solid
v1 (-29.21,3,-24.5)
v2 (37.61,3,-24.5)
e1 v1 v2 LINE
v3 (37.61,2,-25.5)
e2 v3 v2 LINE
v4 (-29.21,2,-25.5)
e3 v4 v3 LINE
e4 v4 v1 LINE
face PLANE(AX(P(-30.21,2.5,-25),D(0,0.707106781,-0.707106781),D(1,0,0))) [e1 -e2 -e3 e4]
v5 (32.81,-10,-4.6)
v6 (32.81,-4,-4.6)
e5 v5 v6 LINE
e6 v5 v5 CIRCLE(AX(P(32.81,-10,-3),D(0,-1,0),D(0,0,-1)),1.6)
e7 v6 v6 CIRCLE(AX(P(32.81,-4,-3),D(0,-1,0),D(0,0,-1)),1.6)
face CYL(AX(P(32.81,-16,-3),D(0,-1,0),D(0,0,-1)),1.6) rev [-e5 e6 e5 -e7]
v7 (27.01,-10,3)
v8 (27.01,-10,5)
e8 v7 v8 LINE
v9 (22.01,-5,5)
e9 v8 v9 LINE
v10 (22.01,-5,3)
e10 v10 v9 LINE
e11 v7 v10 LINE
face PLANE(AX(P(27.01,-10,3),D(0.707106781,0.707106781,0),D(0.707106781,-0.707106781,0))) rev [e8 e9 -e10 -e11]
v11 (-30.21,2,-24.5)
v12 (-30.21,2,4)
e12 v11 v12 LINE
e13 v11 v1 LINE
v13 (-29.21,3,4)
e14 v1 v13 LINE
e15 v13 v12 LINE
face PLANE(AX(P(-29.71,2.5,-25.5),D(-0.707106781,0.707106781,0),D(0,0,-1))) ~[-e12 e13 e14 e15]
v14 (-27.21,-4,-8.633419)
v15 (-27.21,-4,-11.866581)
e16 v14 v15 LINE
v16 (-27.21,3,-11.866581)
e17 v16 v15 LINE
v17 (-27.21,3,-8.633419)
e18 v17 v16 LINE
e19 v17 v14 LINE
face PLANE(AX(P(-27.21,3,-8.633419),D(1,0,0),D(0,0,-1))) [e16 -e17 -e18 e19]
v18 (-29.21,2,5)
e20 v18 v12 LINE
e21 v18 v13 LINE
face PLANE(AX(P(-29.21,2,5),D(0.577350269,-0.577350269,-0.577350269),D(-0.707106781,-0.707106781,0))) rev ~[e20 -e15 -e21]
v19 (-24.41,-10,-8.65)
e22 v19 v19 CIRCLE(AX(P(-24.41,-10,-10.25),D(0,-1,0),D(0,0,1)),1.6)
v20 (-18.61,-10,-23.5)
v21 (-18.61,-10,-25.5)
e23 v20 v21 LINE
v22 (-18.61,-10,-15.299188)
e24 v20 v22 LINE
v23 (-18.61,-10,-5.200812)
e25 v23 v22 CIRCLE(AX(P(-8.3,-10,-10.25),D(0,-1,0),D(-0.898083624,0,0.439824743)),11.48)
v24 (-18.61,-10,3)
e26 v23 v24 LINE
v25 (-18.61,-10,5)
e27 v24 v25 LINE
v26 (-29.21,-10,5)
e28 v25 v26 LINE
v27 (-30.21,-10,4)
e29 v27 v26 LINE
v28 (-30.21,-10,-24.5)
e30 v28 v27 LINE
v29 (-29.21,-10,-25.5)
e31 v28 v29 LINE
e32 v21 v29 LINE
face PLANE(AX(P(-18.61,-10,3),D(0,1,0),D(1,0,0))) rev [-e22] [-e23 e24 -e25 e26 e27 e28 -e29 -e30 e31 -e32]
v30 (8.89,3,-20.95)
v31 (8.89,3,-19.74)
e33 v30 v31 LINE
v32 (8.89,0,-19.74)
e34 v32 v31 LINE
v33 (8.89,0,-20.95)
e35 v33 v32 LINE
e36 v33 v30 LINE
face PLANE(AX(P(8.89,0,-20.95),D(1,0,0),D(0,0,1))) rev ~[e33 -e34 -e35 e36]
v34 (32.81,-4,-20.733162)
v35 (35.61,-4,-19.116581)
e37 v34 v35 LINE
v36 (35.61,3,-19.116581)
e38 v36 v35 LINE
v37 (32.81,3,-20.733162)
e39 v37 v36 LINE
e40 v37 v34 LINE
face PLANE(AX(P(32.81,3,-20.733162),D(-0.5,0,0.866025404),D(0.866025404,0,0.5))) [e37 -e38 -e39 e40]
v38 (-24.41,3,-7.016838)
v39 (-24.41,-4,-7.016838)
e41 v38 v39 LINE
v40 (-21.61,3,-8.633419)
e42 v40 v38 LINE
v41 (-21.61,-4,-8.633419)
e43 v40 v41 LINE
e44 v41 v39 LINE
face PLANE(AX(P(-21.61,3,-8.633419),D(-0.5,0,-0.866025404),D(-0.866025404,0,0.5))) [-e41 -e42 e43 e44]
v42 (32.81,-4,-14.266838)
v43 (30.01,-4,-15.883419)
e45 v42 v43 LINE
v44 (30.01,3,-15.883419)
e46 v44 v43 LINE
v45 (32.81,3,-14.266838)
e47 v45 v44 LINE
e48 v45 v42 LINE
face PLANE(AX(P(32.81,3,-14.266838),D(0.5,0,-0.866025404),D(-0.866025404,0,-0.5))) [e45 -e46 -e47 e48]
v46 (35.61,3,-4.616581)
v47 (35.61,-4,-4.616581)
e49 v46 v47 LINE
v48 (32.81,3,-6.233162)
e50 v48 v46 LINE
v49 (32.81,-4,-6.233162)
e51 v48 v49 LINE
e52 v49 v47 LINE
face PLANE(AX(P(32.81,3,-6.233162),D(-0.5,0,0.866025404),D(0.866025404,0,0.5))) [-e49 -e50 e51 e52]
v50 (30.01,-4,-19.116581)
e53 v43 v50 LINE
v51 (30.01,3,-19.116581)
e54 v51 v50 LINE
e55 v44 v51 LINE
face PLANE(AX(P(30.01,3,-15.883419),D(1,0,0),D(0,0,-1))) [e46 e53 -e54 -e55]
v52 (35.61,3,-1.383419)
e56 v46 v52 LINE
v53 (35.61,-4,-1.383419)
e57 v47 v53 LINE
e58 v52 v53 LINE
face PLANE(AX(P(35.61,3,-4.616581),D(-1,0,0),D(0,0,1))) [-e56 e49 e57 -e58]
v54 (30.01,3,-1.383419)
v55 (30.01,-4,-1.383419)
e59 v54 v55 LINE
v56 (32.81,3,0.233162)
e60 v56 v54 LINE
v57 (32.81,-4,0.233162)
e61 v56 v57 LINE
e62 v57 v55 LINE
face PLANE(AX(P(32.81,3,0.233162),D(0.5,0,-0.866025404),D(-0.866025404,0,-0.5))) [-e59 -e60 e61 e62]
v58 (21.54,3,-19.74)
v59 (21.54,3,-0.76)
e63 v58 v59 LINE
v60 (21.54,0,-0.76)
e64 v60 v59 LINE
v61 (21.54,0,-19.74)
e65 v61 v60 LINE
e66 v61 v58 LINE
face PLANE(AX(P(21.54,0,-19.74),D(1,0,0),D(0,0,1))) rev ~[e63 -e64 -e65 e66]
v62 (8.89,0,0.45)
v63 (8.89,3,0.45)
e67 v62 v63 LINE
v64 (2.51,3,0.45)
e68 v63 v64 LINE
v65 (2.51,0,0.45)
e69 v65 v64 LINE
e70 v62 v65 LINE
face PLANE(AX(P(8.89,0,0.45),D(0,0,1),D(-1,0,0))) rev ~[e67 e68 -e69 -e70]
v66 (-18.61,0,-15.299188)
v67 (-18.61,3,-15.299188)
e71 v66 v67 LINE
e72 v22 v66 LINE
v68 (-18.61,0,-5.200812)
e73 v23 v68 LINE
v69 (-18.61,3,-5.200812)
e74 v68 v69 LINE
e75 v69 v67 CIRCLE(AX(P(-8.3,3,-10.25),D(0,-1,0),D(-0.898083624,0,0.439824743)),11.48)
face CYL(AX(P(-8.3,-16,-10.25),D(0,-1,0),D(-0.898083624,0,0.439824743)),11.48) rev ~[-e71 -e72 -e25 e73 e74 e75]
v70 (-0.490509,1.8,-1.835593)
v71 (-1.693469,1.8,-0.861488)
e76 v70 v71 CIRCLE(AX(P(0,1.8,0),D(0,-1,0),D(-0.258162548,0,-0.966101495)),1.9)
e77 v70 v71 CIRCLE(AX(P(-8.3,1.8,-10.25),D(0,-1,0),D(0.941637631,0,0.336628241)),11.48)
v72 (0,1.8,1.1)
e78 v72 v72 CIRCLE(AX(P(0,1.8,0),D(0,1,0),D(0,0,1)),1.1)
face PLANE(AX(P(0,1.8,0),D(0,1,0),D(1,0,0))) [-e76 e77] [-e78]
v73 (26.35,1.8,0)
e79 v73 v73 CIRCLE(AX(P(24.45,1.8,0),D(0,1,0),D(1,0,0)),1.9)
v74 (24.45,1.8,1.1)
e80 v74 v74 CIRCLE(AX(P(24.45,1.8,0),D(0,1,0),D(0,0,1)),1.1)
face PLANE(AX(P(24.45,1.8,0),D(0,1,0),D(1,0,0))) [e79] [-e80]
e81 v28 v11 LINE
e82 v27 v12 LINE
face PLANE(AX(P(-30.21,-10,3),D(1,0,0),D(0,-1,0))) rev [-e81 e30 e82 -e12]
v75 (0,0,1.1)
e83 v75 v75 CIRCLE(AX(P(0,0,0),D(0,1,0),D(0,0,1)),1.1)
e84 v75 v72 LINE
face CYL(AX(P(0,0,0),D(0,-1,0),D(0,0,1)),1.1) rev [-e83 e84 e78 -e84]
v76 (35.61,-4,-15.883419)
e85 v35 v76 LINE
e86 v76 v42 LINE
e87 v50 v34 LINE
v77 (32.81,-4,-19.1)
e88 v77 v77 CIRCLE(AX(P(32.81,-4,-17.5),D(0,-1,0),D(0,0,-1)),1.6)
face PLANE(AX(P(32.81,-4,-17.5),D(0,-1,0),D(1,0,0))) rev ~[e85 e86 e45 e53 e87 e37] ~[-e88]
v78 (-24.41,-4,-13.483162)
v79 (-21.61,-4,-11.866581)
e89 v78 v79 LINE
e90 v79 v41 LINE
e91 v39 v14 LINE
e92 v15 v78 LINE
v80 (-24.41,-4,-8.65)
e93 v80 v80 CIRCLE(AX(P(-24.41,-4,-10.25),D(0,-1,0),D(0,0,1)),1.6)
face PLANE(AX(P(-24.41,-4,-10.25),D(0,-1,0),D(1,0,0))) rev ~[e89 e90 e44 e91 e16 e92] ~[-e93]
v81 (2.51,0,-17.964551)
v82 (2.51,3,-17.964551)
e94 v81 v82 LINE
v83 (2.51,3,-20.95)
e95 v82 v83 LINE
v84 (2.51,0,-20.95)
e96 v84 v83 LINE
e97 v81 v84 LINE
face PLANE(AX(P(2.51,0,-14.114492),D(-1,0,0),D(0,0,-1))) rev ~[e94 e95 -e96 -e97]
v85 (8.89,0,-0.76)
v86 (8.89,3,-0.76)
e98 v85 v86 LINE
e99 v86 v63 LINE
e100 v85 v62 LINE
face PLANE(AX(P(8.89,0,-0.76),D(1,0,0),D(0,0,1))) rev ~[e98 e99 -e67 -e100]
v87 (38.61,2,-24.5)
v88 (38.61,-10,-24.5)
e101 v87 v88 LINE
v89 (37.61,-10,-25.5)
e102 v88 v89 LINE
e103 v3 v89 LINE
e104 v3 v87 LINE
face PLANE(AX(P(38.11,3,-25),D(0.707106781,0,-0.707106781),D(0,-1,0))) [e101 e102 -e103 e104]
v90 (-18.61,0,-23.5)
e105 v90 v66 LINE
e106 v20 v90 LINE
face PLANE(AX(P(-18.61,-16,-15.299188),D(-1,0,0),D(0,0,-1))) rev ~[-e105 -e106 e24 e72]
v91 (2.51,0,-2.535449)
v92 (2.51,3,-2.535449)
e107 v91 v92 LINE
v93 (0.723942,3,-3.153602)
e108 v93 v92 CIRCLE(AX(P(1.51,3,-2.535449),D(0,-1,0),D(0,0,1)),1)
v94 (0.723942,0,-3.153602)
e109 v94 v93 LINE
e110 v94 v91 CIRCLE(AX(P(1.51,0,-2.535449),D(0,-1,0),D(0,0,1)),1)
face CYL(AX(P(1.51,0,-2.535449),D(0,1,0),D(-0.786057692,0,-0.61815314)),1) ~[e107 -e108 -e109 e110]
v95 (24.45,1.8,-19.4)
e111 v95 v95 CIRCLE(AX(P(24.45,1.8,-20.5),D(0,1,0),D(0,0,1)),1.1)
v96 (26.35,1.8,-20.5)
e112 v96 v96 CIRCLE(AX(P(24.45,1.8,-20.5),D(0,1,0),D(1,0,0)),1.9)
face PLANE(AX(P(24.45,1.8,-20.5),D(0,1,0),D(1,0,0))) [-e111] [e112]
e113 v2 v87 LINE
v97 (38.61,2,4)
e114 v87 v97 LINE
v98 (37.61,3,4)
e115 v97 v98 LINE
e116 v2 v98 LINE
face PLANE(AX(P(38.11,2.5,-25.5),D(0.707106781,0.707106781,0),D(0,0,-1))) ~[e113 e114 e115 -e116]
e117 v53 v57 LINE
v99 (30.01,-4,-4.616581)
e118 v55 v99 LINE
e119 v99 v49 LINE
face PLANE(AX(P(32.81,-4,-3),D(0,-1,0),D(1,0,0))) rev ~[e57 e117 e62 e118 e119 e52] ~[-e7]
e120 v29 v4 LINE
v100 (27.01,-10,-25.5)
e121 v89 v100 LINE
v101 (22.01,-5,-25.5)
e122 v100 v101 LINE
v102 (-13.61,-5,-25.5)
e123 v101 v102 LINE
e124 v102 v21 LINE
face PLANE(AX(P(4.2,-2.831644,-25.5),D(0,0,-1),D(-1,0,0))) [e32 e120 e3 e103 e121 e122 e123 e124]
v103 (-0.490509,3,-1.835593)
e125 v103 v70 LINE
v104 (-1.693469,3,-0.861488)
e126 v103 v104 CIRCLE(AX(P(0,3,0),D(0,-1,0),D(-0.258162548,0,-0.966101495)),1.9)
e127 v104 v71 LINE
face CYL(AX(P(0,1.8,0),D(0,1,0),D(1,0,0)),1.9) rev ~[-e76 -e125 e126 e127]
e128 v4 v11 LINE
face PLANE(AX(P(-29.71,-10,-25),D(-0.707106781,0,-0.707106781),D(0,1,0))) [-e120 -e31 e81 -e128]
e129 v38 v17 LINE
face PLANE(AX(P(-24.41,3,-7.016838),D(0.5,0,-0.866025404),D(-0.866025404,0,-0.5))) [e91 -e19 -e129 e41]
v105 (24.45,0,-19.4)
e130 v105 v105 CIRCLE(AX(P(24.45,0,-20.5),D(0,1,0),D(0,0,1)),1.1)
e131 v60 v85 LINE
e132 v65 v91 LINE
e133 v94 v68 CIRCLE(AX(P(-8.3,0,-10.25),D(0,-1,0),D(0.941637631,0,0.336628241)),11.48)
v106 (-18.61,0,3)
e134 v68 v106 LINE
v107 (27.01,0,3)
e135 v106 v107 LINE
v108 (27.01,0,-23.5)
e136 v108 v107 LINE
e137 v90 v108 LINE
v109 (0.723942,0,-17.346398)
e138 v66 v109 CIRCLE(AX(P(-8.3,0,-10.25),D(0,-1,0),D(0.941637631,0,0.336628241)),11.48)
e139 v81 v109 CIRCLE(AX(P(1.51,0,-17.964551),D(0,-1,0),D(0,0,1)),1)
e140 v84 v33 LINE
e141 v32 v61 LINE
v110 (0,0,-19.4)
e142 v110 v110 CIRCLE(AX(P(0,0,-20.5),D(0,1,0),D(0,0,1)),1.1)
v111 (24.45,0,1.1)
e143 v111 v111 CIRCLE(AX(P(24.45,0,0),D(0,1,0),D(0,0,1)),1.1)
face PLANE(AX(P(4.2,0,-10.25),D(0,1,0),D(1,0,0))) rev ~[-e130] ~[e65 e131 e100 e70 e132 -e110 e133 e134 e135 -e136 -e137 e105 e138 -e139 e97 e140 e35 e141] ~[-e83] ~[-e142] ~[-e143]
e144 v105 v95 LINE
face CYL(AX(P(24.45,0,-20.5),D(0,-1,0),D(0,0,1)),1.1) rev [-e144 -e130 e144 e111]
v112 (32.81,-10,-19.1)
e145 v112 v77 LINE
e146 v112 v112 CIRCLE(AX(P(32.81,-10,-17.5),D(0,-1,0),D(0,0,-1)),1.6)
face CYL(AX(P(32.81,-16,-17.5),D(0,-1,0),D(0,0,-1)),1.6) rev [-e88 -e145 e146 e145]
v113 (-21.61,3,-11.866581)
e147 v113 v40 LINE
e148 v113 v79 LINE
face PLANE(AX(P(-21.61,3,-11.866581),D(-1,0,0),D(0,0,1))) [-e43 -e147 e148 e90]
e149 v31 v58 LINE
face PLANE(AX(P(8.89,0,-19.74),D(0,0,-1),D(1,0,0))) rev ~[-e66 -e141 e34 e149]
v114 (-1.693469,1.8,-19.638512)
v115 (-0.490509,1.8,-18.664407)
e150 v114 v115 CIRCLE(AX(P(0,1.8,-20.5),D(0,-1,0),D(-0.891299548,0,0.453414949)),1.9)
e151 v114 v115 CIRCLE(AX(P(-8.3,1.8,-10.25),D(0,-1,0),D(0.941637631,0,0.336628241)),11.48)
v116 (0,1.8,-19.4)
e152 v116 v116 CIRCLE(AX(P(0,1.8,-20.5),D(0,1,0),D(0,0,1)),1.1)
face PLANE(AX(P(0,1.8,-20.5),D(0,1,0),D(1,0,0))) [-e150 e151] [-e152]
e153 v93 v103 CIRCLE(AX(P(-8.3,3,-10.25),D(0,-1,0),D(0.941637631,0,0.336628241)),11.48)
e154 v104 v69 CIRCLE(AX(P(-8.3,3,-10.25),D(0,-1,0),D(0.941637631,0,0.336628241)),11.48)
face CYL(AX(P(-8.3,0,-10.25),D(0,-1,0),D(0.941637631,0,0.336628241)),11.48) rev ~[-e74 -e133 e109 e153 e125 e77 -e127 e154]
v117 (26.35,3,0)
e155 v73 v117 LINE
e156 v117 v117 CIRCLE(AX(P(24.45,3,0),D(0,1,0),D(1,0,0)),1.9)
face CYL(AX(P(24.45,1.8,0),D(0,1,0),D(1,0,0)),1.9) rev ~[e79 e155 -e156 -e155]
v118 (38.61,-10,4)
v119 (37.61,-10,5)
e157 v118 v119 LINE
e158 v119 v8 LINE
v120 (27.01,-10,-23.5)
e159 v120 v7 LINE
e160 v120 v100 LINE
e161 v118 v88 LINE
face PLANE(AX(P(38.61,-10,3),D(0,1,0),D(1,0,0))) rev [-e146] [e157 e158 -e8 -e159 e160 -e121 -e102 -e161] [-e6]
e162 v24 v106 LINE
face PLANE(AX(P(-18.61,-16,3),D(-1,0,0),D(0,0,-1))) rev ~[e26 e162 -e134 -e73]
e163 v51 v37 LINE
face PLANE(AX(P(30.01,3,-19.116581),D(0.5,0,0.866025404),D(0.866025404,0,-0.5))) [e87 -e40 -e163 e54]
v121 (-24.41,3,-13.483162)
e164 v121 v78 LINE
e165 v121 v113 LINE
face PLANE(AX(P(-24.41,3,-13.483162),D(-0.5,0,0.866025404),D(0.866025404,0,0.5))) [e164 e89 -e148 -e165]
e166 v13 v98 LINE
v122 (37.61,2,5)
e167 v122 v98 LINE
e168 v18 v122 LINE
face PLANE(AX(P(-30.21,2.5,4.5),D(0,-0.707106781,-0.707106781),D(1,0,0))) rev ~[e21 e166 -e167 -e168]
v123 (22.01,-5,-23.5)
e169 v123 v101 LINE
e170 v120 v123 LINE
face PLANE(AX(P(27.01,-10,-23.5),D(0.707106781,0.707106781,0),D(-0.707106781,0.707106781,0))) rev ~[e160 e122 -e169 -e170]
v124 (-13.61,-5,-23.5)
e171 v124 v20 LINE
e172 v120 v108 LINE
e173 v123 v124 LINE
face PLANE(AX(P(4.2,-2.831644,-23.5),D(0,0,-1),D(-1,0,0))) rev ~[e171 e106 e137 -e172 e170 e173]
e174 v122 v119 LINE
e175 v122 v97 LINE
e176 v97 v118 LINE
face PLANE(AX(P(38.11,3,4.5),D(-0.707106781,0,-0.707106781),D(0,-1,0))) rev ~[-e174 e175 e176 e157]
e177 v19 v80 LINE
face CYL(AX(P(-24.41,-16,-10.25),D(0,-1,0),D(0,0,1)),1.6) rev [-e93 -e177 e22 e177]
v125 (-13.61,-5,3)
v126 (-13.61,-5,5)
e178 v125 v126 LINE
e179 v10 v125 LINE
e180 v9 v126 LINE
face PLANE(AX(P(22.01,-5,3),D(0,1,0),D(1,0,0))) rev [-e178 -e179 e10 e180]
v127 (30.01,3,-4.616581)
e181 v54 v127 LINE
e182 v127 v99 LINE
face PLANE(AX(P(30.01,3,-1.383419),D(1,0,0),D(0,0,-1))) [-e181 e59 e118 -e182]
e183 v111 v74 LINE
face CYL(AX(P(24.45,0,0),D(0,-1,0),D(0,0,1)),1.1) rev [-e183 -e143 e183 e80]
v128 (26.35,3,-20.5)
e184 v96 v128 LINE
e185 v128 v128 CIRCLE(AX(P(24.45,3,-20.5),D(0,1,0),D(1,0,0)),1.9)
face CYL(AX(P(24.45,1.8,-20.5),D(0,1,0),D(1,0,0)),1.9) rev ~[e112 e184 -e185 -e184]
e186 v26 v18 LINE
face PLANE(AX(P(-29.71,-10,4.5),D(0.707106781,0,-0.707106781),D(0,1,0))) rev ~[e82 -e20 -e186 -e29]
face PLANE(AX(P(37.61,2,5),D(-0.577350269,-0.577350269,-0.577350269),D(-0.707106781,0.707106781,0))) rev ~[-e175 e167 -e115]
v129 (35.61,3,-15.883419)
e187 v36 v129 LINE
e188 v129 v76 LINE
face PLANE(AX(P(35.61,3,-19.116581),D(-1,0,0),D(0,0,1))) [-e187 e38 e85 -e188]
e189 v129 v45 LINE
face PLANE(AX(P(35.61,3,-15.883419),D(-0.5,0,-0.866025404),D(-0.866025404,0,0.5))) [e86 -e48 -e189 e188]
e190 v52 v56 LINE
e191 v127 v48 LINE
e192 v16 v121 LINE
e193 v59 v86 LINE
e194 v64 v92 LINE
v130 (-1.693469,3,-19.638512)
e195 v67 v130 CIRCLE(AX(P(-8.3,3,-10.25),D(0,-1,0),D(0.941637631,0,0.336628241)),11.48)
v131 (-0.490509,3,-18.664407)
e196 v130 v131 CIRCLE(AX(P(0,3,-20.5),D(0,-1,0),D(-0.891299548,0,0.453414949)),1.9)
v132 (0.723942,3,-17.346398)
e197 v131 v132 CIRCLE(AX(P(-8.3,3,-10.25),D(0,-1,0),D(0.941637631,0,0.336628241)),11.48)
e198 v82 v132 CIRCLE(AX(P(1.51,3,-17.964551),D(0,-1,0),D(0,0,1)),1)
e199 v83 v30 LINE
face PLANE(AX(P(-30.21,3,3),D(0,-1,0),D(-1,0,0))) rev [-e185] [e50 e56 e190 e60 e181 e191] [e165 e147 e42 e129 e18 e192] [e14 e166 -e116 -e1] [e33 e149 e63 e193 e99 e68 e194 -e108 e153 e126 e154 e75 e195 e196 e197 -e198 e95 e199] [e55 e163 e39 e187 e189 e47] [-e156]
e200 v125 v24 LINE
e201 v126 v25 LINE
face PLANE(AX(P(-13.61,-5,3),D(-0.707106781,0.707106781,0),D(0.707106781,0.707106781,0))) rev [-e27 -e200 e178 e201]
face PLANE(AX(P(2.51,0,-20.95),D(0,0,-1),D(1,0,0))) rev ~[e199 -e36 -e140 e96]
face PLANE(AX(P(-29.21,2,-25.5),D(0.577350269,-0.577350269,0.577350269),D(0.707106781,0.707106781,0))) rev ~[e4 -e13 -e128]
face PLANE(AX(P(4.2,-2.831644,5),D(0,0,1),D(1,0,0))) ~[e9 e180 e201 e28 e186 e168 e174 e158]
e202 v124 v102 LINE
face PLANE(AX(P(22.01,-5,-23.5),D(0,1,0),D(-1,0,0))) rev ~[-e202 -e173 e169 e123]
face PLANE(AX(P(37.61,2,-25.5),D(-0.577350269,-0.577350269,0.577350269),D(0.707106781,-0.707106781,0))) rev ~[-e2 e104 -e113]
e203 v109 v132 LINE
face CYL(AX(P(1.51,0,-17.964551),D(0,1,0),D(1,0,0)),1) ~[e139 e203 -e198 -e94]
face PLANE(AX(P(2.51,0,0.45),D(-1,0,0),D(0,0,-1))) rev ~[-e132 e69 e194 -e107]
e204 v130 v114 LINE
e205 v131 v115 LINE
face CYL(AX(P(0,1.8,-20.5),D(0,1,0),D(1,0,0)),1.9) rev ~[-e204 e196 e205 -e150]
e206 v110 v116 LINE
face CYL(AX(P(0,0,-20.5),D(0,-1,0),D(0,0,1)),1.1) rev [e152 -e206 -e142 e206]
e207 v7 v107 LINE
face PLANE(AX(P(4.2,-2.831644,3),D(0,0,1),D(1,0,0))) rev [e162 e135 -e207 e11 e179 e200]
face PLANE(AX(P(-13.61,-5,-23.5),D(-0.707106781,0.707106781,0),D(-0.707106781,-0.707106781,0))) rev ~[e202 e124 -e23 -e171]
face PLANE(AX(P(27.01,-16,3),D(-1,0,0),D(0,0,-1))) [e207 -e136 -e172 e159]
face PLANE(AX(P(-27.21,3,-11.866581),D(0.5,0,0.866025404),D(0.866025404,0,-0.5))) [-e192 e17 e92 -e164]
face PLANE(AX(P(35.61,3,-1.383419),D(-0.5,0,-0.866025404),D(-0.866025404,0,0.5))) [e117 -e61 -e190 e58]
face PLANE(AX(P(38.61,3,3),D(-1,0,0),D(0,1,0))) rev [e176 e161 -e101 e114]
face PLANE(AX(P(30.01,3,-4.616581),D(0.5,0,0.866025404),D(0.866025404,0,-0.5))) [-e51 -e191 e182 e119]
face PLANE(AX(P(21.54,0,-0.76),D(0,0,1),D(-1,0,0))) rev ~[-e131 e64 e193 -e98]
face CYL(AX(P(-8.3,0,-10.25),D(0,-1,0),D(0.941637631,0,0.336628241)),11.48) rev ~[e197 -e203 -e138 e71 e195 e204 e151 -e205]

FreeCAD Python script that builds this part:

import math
import FreeCAD as App
import Part
import Sketcher
from FreeCAD import Vector
Q = App.Units.Quantity


def edges_at(feature, points):
    """Names of the edges that pass closest to the given points."""
    edges = feature.Shape.Edges
    near = lambda p: min(range(len(edges)), key=lambda i: edges[i].distToShape(Part.Vertex(*p))[0])
    return sorted({f"Edge{near(p) + 1}" for p in points})

doc = App.newDocument("Part")
body = doc.addObject("PartDesign::Body", "Body")

sketch1 = body.newObject("Sketcher::SketchObject", "Sketch")
sketch1.AttachmentSupport = (doc.getObject("XZ_Plane"), [""])
sketch1.MapMode = "FlatFace"
sketch1.addGeometry(Part.LineSegment(Vector(-21.1, -23.5, 0), Vector(-21.1, 3, 0)), False)
sketch1.addGeometry(Part.LineSegment(Vector(-21.1, 3, 0), Vector(29.4, 3, 0)), False)
sketch1.addGeometry(Part.LineSegment(Vector(29.4, 3, 0), Vector(29.4, -23.5, 0)), False)
sketch1.addGeometry(Part.LineSegment(Vector(29.4, -23.5, 0), Vector(-21.1, -23.5, 0)), False)
sketch1.addGeometry(Part.Circle(Vector(0, 0, 0), Vector(0, 0, 1), 1.1), False)
sketch1.addGeometry(Part.LineSegment(Vector(2.5, -20.9, 0), Vector(8.9, -20.9, 0)), False)
sketch1.addGeometry(Part.LineSegment(Vector(8.9, -20.9, 0), Vector(8.9, -19.7, 0)), False)
sketch1.addGeometry(Part.LineSegment(Vector(8.9, -19.7, 0), Vector(21.5, -19.7, 0)), False)
sketch1.addGeometry(Part.LineSegment(Vector(21.5, -19.7, 0), Vector(21.5, -0.8, 0)), False)
sketch1.addGeometry(Part.LineSegment(Vector(21.5, -0.8, 0), Vector(8.9, -0.8, 0)), False)
sketch1.addGeometry(Part.LineSegment(Vector(8.9, -0.8, 0), Vector(8.9, 0.5, 0)), False)
sketch1.addGeometry(Part.LineSegment(Vector(8.9, 0.5, 0), Vector(2.5, 0.5, 0)), False)
sketch1.addGeometry(Part.LineSegment(Vector(2.5, 0.5, 0), Vector(2.5, -6.4, 0)), False)
sketch1.addGeometry(Part.ArcOfCircle(Part.Circle(Vector(-8.3, -10.2, 0), Vector(0, 0, 1), 11.5), math.radians(20), math.radians(340)), False)
sketch1.addGeometry(Part.LineSegment(Vector(2.5, -14.1, 0), Vector(2.5, -20.9, 0)), False)
sketch1.addGeometry(Part.Circle(Vector(24.4, 0, 0), Vector(0, 0, 1), 1.1), False)
sketch1.addGeometry(Part.Circle(Vector(0, -20.5, 0), Vector(0, 0, 1), 1.1), False)
sketch1.addGeometry(Part.Circle(Vector(24.4, -20.5, 0), Vector(0, 0, 1), 1.1), False)
sketch1.addConstraint(Sketcher.Constraint("Coincident", 0, 2, 1, 1))
sketch1.addConstraint(Sketcher.Constraint("Coincident", 1, 2, 2, 1))
sketch1.addConstraint(Sketcher.Constraint("Coincident", 2, 2, 3, 1))
sketch1.addConstraint(Sketcher.Constraint("Coincident", 3, 2, 0, 1))
sketch1.addConstraint(Sketcher.Constraint("Coincident", 5, 2, 6, 1))
sketch1.addConstraint(Sketcher.Constraint("Coincident", 6, 2, 7, 1))
sketch1.addConstraint(Sketcher.Constraint("Coincident", 7, 2, 8, 1))
sketch1.addConstraint(Sketcher.Constraint("Coincident", 8, 2, 9, 1))
sketch1.addConstraint(Sketcher.Constraint("Coincident", 9, 2, 10, 1))
sketch1.addConstraint(Sketcher.Constraint("Coincident", 10, 2, 11, 1))
sketch1.addConstraint(Sketcher.Constraint("Coincident", 11, 2, 12, 1))
sketch1.addConstraint(Sketcher.Constraint("Coincident", 12, 2, 13, 1))
sketch1.addConstraint(Sketcher.Constraint("Coincident", 13, 2, 14, 1))
sketch1.addConstraint(Sketcher.Constraint("Coincident", 14, 2, 5, 1))
sketch1.addConstraint(Sketcher.Constraint("Vertical", 0))
sketch1.addConstraint(Sketcher.Constraint("Horizontal", 1))
sketch1.addConstraint(Sketcher.Constraint("Vertical", 2))
sketch1.addConstraint(Sketcher.Constraint("Horizontal", 3))
sketch1.addConstraint(Sketcher.Constraint("Horizontal", 5))
sketch1.addConstraint(Sketcher.Constraint("Vertical", 6))
sketch1.addConstraint(Sketcher.Constraint("Horizontal", 7))
sketch1.addConstraint(Sketcher.Constraint("Vertical", 8))
sketch1.addConstraint(Sketcher.Constraint("Horizontal", 9))
sketch1.addConstraint(Sketcher.Constraint("Vertical", 10))
sketch1.addConstraint(Sketcher.Constraint("Horizontal", 11))
sketch1.addConstraint(Sketcher.Constraint("Vertical", 12))
sketch1.addConstraint(Sketcher.Constraint("Vertical", 14))
sketch1.addConstraint(Sketcher.Constraint("Coincident", 4, 3, -1, 1))
sketch1.addConstraint(Sketcher.Constraint("Equal", 4, 15))
sketch1.addConstraint(Sketcher.Constraint("Equal", 15, 16))
sketch1.addConstraint(Sketcher.Constraint("Equal", 16, 17))
sketch1.addConstraint(Sketcher.Constraint("PointOnObject", 15, 3, -1))
sketch1.addConstraint(Sketcher.Constraint("PointOnObject", 16, 3, -2))
sketch1.addConstraint(Sketcher.Constraint("Horizontal", 16, 3, 17, 3))
sketch1.addConstraint(Sketcher.Constraint("Vertical", 15, 3, 17, 3))
sketch1.addConstraint(Sketcher.Constraint("Vertical", 6, 2, 9, 2))
sketch1.addConstraint(Sketcher.Constraint("Vertical", 12, 2, 13, 2))
sketch1.addConstraint(Sketcher.Constraint("Equal", 6, 10))
sketch1.addConstraint(Sketcher.Constraint("Equal", 12, 14))
sketch1.addConstraint(Sketcher.Constraint("Diameter", 4, 2.2))
sketch1.addConstraint(Sketcher.Constraint("Radius", 13, 11.48))
sketch1.addConstraint(Sketcher.Constraint("DistanceX", 1, 1, 1, 2, 50.5))
sketch1.addConstraint(Sketcher.Constraint("DistanceY", 0, 1, 0, 2, 26.5))
sketch1.addConstraint(Sketcher.Constraint("DistanceY", -1, 1, 0, 2, 3.0))
sketch1.addConstraint(Sketcher.Constraint("DistanceX", 15, 3, 1, 2, 5.0))
sketch1.addConstraint(Sketcher.Constraint("DistanceY", 2, 2, 17, 3, 3.0))
sketch1.addConstraint(Sketcher.Constraint("DistanceX", 5, 1, 5, 2, 6.38))
sketch1.addConstraint(Sketcher.Constraint("DistanceX", 7, 1, 7, 2, 12.65))
sketch1.addConstraint(Sketcher.Constraint("DistanceY", 6, 1, 6, 2, 1.21))
sketch1.addConstraint(Sketcher.Constraint("DistanceY", 8, 1, 8, 2, 18.98))
sketch1.addConstraint(Sketcher.Constraint("DistanceX", 13, 3, -1, 1, 8.3))
sketch1.addConstraint(Sketcher.Constraint("DistanceY", 13, 3, -1, 1, 10.25))
sketch1.addConstraint(Sketcher.Constraint("DistanceX", -1, 1, 15, 3, 24.45))
sketch1.addConstraint(Sketcher.Constraint("DistanceX", -1, 1, 5, 2, 8.89))
pad1 = body.newObject("PartDesign::Pad", "Pad")
pad1.Profile = sketch1
pad1.Length = 3
pad1.Reversed = True
doc.recompute()

fillet = body.newObject("PartDesign::Fillet", "Fillet")
fillet.Base = (pad1, edges_at(pad1, [(2.51, 1.5, -6.386), (2.51, 1.5, -14.114)]))
fillet.Radius = 1

sketch2 = body.newObject("Sketcher::SketchObject", "Sketch001")
sketch2.AttachmentSupport = (doc.getObject("XZ_Plane"), [""])
sketch2.MapMode = "FlatFace"
sketch2.AttachmentOffset = App.Placement(Vector(0, 0, -3), App.Rotation())
sketch2.addGeometry(Part.Circle(Vector(0, 0, 0), Vector(0, 0, 1), 1.1), False)
sketch2.addGeometry(Part.Circle(Vector(0, -20.5, 0), Vector(0, 0, 1), 1.1), False)
sketch2.addGeometry(Part.Circle(Vector(24.4, -20.5, 0), Vector(0, 0, 1), 1.1), False)
sketch2.addGeometry(Part.Circle(Vector(24.4, 0, 0), Vector(0, 0, 1), 1.1), False)
sketch2.addConstraint(Sketcher.Constraint("Coincident", 0, 3, -1, 1))
sketch2.addConstraint(Sketcher.Constraint("Equal", 0, 1))
sketch2.addConstraint(Sketcher.Constraint("Equal", 1, 2))
sketch2.addConstraint(Sketcher.Constraint("Equal", 2, 3))
sketch2.addConstraint(Sketcher.Constraint("PointOnObject", 1, 3, -2))
sketch2.addConstraint(Sketcher.Constraint("PointOnObject", 3, 3, -1))
sketch2.addConstraint(Sketcher.Constraint("Horizontal", 1, 3, 2, 3))
sketch2.addConstraint(Sketcher.Constraint("Vertical", 2, 3, 3, 3))
sketch2.addConstraint(Sketcher.Constraint("Diameter", 0, 2.2))
sketch2.addConstraint(Sketcher.Constraint("DistanceY", 1, 3, -1, 1, 20.5))
sketch2.addConstraint(Sketcher.Constraint("DistanceX", -1, 1, 2, 3, 24.45))
doc.recompute()
hole = body.newObject("PartDesign::Hole", "Hole")
hole.Profile = sketch2
hole.ThreadType = "None"
hole.Diameter = 2.2
hole.DepthType = "ThroughAll"
hole.HoleCutType = "Counterbore"
hole.HoleCutDiameter = 3.8
hole.HoleCutDepth = 1.2
hole.Reversed = True

sketch3 = body.newObject("Sketcher::SketchObject", "Sketch002")
sketch3.AttachmentSupport = (doc.getObject("XZ_Plane"), [""])
sketch3.MapMode = "FlatFace"
sketch3.AttachmentOffset = App.Placement(Vector(0, 0, 16), App.Rotation())
sketch3.addGeometry(Part.LineSegment(Vector(-18.6, -23.5, 0), Vector(-30.2, -23.5, 0)), False)
sketch3.addGeometry(Part.LineSegment(Vector(-30.2, -23.5, 0), Vector(-30.2, 3, 0)), False)
sketch3.addGeometry(Part.LineSegment(Vector(-30.2, 3, 0), Vector(-18.6, 3, 0)), False)
sketch3.addGeometry(Part.LineSegment(Vector(-18.6, 3, 0), Vector(-18.6, -5.2, 0)), False)
sketch3.addGeometry(Part.ArcOfCircle(Part.Circle(Vector(-8.3, -10.2, 0), Vector(0, 0, 1), 11.5), math.radians(154), math.radians(206)), False)
sketch3.addGeometry(Part.LineSegment(Vector(-18.6, -15.3, 0), Vector(-18.6, -23.5, 0)), False)
sketch3.addGeometry(Part.Circle(Vector(-24.4, -10.2, 0), Vector(0, 0, 1), 1.6), False)
sketch3.addGeometry(Part.LineSegment(Vector(27, -23.5, 0), Vector(27, 3, 0)), False)
sketch3.addGeometry(Part.LineSegment(Vector(27, 3, 0), Vector(38.6, 3, 0)), False)
sketch3.addGeometry(Part.LineSegment(Vector(38.6, 3, 0), Vector(38.6, -23.5, 0)), False)
sketch3.addGeometry(Part.LineSegment(Vector(38.6, -23.5, 0), Vector(27, -23.5, 0)), False)
sketch3.addGeometry(Part.Circle(Vector(32.8, -3, 0), Vector(0, 0, 1), 1.6), False)
sketch3.addGeometry(Part.Circle(Vector(32.8, -17.5, 0), Vector(0, 0, 1), 1.6), False)
sketch3.addConstraint(Sketcher.Constraint("Coincident", 0, 2, 1, 1))
sketch3.addConstraint(Sketcher.Constraint("Coincident", 1, 2, 2, 1))
sketch3.addConstraint(Sketcher.Constraint("Coincident", 2, 2, 3, 1))
sketch3.addConstraint(Sketcher.Constraint("Coincident", 3, 2, 4, 1))
sketch3.addConstraint(Sketcher.Constraint("Coincident", 4, 2, 5, 1))
sketch3.addConstraint(Sketcher.Constraint("Coincident", 5, 2, 0, 1))
sketch3.addConstraint(Sketcher.Constraint("Coincident", 7, 2, 8, 1))
sketch3.addConstraint(Sketcher.Constraint("Coincident", 8, 2, 9, 1))
sketch3.addConstraint(Sketcher.Constraint("Coincident", 9, 2, 10, 1))
sketch3.addConstraint(Sketcher.Constraint("Coincident", 10, 2, 7, 1))
sketch3.addConstraint(Sketcher.Constraint("Horizontal", 0))
sketch3.addConstraint(Sketcher.Constraint("Vertical", 1))
sketch3.addConstraint(Sketcher.Constraint("Horizontal", 2))
sketch3.addConstraint(Sketcher.Constraint("Vertical", 3))
sketch3.addConstraint(Sketcher.Constraint("Vertical", 5))
sketch3.addConstraint(Sketcher.Constraint("Vertical", 7))
sketch3.addConstraint(Sketcher.Constraint("Horizontal", 8))
sketch3.addConstraint(Sketcher.Constraint("Vertical", 9))
sketch3.addConstraint(Sketcher.Constraint("Horizontal", 10))
sketch3.addConstraint(Sketcher.Constraint("Equal", 6, 11))
sketch3.addConstraint(Sketcher.Constraint("Equal", 11, 12))
sketch3.addConstraint(Sketcher.Constraint("Horizontal", 4, 3, 6, 3))
sketch3.addConstraint(Sketcher.Constraint("Horizontal", 2, 2, 7, 2))
sketch3.addConstraint(Sketcher.Constraint("Horizontal", 5, 2, 9, 2))
sketch3.addConstraint(Sketcher.Constraint("Vertical", 11, 3, 12, 3))
sketch3.addConstraint(Sketcher.Constraint("Vertical", 3, 2, 4, 2))
sketch3.addConstraint(Sketcher.Constraint("Equal", 2, 8))
sketch3.addConstraint(Sketcher.Constraint("Equal", 3, 5))
sketch3.addConstraint(Sketcher.Constraint("Diameter", 6, 3.2))
sketch3.addConstraint(Sketcher.Constraint("Radius", 4, 11.48))
sketch3.addConstraint(Sketcher.Constraint("DistanceX", 0, 2, 0, 1, 11.6))
sketch3.addConstraint(Sketcher.Constraint("DistanceY", 1, 1, 1, 2, 26.5))
sketch3.addConstraint(Sketcher.Constraint("DistanceY", 11, 3, -1, 1, 3.0))
sketch3.addConstraint(Sketcher.Constraint("DistanceY", -1, 1, 1, 2, 3.0))
sketch3.addConstraint(Sketcher.Constraint("DistanceY", 0, 2, 12, 3, 6.0))
sketch3.addConstraint(Sketcher.Constraint("DistanceX", 4, 3, -1, 1, 8.3))
sketch3.addConstraint(Sketcher.Constraint("DistanceX", 0, 2, 6, 3, 5.8))
sketch3.addConstraint(Sketcher.Constraint("DistanceX", 7, 2, 11, 3, 5.8))
sketch3.addConstraint(Sketcher.Constraint("DistanceX", 6, 3, -1, 1, 24.41))
sketch3.addConstraint(Sketcher.Constraint("DistanceX", -1, 1, 11, 3, 32.81))
pad2 = body.newObject("PartDesign::Pad", "Pad001")
pad2.Profile = sketch3
pad2.Length = 19
pad2.Reversed = True

sketch4 = body.newObject("Sketcher::SketchObject", "Sketch003")
sketch4.AttachmentSupport = (doc.getObject("XZ_Plane"), [""])
sketch4.MapMode = "FlatFace"
sketch4.AttachmentOffset = App.Placement(Vector(0, 0, -3), App.Rotation())
sketch4.addGeometry(Part.LineSegment(Vector(-24.4, -7, 0), Vector(-27.2, -8.6, 0)), False)
sketch4.addGeometry(Part.LineSegment(Vector(-27.2, -8.6, 0), Vector(-27.2, -11.9, 0)), False)
sketch4.addGeometry(Part.LineSegment(Vector(-27.2, -11.9, 0), Vector(-24.4, -13.5, 0)), False)
sketch4.addGeometry(Part.LineSegment(Vector(-24.4, -13.5, 0), Vector(-21.6, -11.9, 0)), False)
sketch4.addGeometry(Part.LineSegment(Vector(-21.6, -11.9, 0), Vector(-21.6, -8.6, 0)), False)
sketch4.addGeometry(Part.LineSegment(Vector(-21.6, -8.6, 0), Vector(-24.4, -7, 0)), False)
sketch4.addGeometry(Part.LineSegment(Vector(32.8, -14.3, 0), Vector(30, -15.9, 0)), False)
sketch4.addGeometry(Part.LineSegment(Vector(30, -15.9, 0), Vector(30, -19.1, 0)), False)
sketch4.addGeometry(Part.LineSegment(Vector(30, -19.1, 0), Vector(32.8, -20.7, 0)), False)
sketch4.addGeometry(Part.LineSegment(Vector(32.8, -20.7, 0), Vector(35.6, -19.1, 0)), False)
sketch4.addGeometry(Part.LineSegment(Vector(35.6, -19.1, 0), Vector(35.6, -15.9, 0)), False)
sketch4.addGeometry(Part.LineSegment(Vector(35.6, -15.9, 0), Vector(32.8, -14.3, 0)), False)
sketch4.addGeometry(Part.LineSegment(Vector(32.8, 0.2, 0), Vector(30, -1.4, 0)), False)
sketch4.addGeometry(Part.LineSegment(Vector(30, -1.4, 0), Vector(30, -4.6, 0)), False)
sketch4.addGeometry(Part.LineSegment(Vector(30, -4.6, 0), Vector(32.8, -6.2, 0)), False)
sketch4.addGeometry(Part.LineSegment(Vector(32.8, -6.2, 0), Vector(35.6, -4.6, 0)), False)
sketch4.addGeometry(Part.LineSegment(Vector(35.6, -4.6, 0), Vector(35.6, -1.4, 0)), False)
sketch4.addGeometry(Part.LineSegment(Vector(35.6, -1.4, 0), Vector(32.8, 0.2, 0)), False)
sketch4.addConstraint(Sketcher.Constraint("Coincident", 0, 2, 1, 1))
sketch4.addConstraint(Sketcher.Constraint("Coincident", 1, 2, 2, 1))
sketch4.addConstraint(Sketcher.Constraint("Coincident", 2, 2, 3, 1))
sketch4.addConstraint(Sketcher.Constraint("Coincident", 3, 2, 4, 1))
sketch4.addConstraint(Sketcher.Constraint("Coincident", 4, 2, 5, 1))
sketch4.addConstraint(Sketcher.Constraint("Coincident", 5, 2, 0, 1))
sketch4.addConstraint(Sketcher.Constraint("Coincident", 6, 2, 7, 1))
sketch4.addConstraint(Sketcher.Constraint("Coincident", 7, 2, 8, 1))
sketch4.addConstraint(Sketcher.Constraint("Coincident", 8, 2, 9, 1))
sketch4.addConstraint(Sketcher.Constraint("Coincident", 9, 2, 10, 1))
sketch4.addConstraint(Sketcher.Constraint("Coincident", 10, 2, 11, 1))
sketch4.addConstraint(Sketcher.Constraint("Coincident", 11, 2, 6, 1))
sketch4.addConstraint(Sketcher.Constraint("Coincident", 12, 2, 13, 1))
sketch4.addConstraint(Sketcher.Constraint("Coincident", 13, 2, 14, 1))
sketch4.addConstraint(Sketcher.Constraint("Coincident", 14, 2, 15, 1))
sketch4.addConstraint(Sketcher.Constraint("Coincident", 15, 2, 16, 1))
sketch4.addConstraint(Sketcher.Constraint("Coincident", 16, 2, 17, 1))
sketch4.addConstraint(Sketcher.Constraint("Coincident", 17, 2, 12, 1))
sketch4.addConstraint(Sketcher.Constraint("Vertical", 1))
sketch4.addConstraint(Sketcher.Constraint("Vertical", 4))
sketch4.addConstraint(Sketcher.Constraint("Vertical", 7))
sketch4.addConstraint(Sketcher.Constraint("Vertical", 10))
sketch4.addConstraint(Sketcher.Constraint("Vertical", 13))
sketch4.addConstraint(Sketcher.Constraint("Vertical", 16))
sketch4.addConstraint(Sketcher.Constraint("Parallel", 0, 3))
sketch4.addConstraint(Sketcher.Constraint("Parallel", 2, 5))
sketch4.addConstraint(Sketcher.Constraint("Parallel", 3, 6))
sketch4.addConstraint(Sketcher.Constraint("Parallel", 5, 8))
sketch4.addConstraint(Sketcher.Constraint("Parallel", 6, 9))
sketch4.addConstraint(Sketcher.Constraint("Parallel", 8, 11))
sketch4.addConstraint(Sketcher.Constraint("Parallel", 9, 12))
sketch4.addConstraint(Sketcher.Constraint("Parallel", 11, 14))
sketch4.addConstraint(Sketcher.Constraint("Parallel", 12, 15))
sketch4.addConstraint(Sketcher.Constraint("Parallel", 14, 17))
sketch4.addConstraint(Sketcher.Constraint("Horizontal", 1, 2, 3, 2))
sketch4.addConstraint(Sketcher.Constraint("Horizontal", 0, 2, 4, 2))
sketch4.addConstraint(Sketcher.Constraint("Horizontal", 7, 2, 9, 2))
sketch4.addConstraint(Sketcher.Constraint("Horizontal", 6, 2, 10, 2))
sketch4.addConstraint(Sketcher.Constraint("Horizontal", 13, 2, 15, 2))
sketch4.addConstraint(Sketcher.Constraint("Horizontal", 12, 2, 16, 2))
sketch4.addConstraint(Sketcher.Constraint("Vertical", 2, 2, 5, 2))
sketch4.addConstraint(Sketcher.Constraint("Vertical", 7, 2, 12, 2))
sketch4.addConstraint(Sketcher.Constraint("Vertical", 11, 2, 14, 2))
sketch4.addConstraint(Sketcher.Constraint("Equal", 4, 7))
sketch4.addConstraint(Sketcher.Constraint("Equal", 10, 13))
sketch4.addConstraint(Sketcher.Constraint("Equal", 5, 6))
sketch4.addConstraint(Sketcher.Constraint("Angle", 0, Q("-150 deg")))
sketch4.addConstraint(Sketcher.Constraint("DistanceX", 1, 2, 2, 2, 2.8))
sketch4.addConstraint(Sketcher.Constraint("DistanceY", 6, 2, 12, 2, 14.5))
sketch4.addConstraint(Sketcher.Constraint("DistanceX", 0, 2, -1, 1, 27.21))
sketch4.addConstraint(Sketcher.Constraint("DistanceX", -1, 1, 6, 2, 30.01))
sketch4.addConstraint(Sketcher.Constraint("DistanceY", 6, 2, 4, 2, 7.25))
sketch4.addConstraint(Sketcher.Constraint("DistanceY", 1, 2, 1, 1, 3.233162))
sketch4.addConstraint(Sketcher.Constraint("DistanceY", 0, 2, -1, 1, 8.633419))
pocket1 = body.newObject("PartDesign::Pocket", "Pocket")
pocket1.Profile = sketch4
pocket1.Length = 7
pocket1.Reversed = True

sketch5 = body.newObject("Sketcher::SketchObject", "Sketch004")
sketch5.AttachmentSupport = (doc.getObject("XY_Plane"), [""])
sketch5.MapMode = "FlatFace"
sketch5.AttachmentOffset = App.Placement(Vector(0, 0, -23.5), App.Rotation())
sketch5.addGeometry(Part.LineSegment(Vector(39, -10, 0), Vector(39, -16, 0)), False)
sketch5.addGeometry(Part.LineSegment(Vector(39, -16, 0), Vector(27, -16, 0)), False)
sketch5.addGeometry(Part.LineSegment(Vector(27, -16, 0), Vector(27, -10, 0)), False)
sketch5.addGeometry(Part.LineSegment(Vector(27, -10, 0), Vector(39, -10, 0)), False)
sketch5.addGeometry(Part.LineSegment(Vector(-19, -10, 0), Vector(-19, -16, 0)), False)
sketch5.addGeometry(Part.LineSegment(Vector(-19, -16, 0), Vector(-30, -16, 0)), False)
sketch5.addGeometry(Part.LineSegment(Vector(-30, -16, 0), Vector(-30, -10, 0)), False)
sketch5.addGeometry(Part.LineSegment(Vector(-30, -10, 0), Vector(-19, -10, 0)), False)
sketch5.addConstraint(Sketcher.Constraint("Coincident", 0, 2, 1, 1))
sketch5.addConstraint(Sketcher.Constraint("Coincident", 1, 2, 2, 1))
sketch5.addConstraint(Sketcher.Constraint("Coincident", 2, 2, 3, 1))
sketch5.addConstraint(Sketcher.Constraint("Coincident", 3, 2, 0, 1))
sketch5.addConstraint(Sketcher.Constraint("Coincident", 4, 2, 5, 1))
sketch5.addConstraint(Sketcher.Constraint("Coincident", 5, 2, 6, 1))
sketch5.addConstraint(Sketcher.Constraint("Coincident", 6, 2, 7, 1))
sketch5.addConstraint(Sketcher.Constraint("Coincident", 7, 2, 4, 1))
sketch5.addConstraint(Sketcher.Constraint("Vertical", 0))
sketch5.addConstraint(Sketcher.Constraint("Horizontal", 1))
sketch5.addConstraint(Sketcher.Constraint("Vertical", 2))
sketch5.addConstraint(Sketcher.Constraint("Horizontal", 3))
sketch5.addConstraint(Sketcher.Constraint("Vertical", 4))
sketch5.addConstraint(Sketcher.Constraint("Horizontal", 5))
sketch5.addConstraint(Sketcher.Constraint("Vertical", 6))
sketch5.addConstraint(Sketcher.Constraint("Horizontal", 7))
sketch5.addConstraint(Sketcher.Constraint("Horizontal", 1, 2, 4, 2))
sketch5.addConstraint(Sketcher.Constraint("Horizontal", 3, 2, 6, 2))
sketch5.addConstraint(Sketcher.Constraint("Equal", 3, 5))
sketch5.addConstraint(Sketcher.Constraint("DistanceY", 0, 2, 0, 1, 6.0))
sketch5.addConstraint(Sketcher.Constraint("DistanceX", 1, 2, 1, 1, 11.6))
sketch5.addConstraint(Sketcher.Constraint("DistanceY", 0, 2, -1, 1, 16.0))
sketch5.addConstraint(Sketcher.Constraint("DistanceX", -1, 1, 0, 2, 38.61))
sketch5.addConstraint(Sketcher.Constraint("DistanceX", 4, 2, -1, 1, 18.61))
pocket2 = body.newObject("PartDesign::Pocket", "Pocket001")
pocket2.Profile = sketch5
pocket2.Type = "ThroughAll"
pocket2.Reversed = True

sketch6 = body.newObject("Sketcher::SketchObject", "Sketch005")
sketch6.AttachmentSupport = (doc.getObject("XY_Plane"), [""])
sketch6.MapMode = "FlatFace"
sketch6.AttachmentOffset = App.Placement(Vector(0, 0, -23.5), App.Rotation())
sketch6.addGeometry(Part.LineSegment(Vector(39, 3, 0), Vector(39, -10, 0)), False)
sketch6.addGeometry(Part.LineSegment(Vector(39, -10, 0), Vector(27, -10, 0)), False)
sketch6.addGeometry(Part.LineSegment(Vector(27, -10, 0), Vector(22, -5, 0)), False)
sketch6.addGeometry(Part.LineSegment(Vector(22, -5, 0), Vector(-14, -5, 0)), False)
sketch6.addGeometry(Part.LineSegment(Vector(-14, -5, 0), Vector(-19, -10, 0)), False)
sketch6.addGeometry(Part.LineSegment(Vector(-19, -10, 0), Vector(-30, -10, 0)), False)
sketch6.addGeometry(Part.LineSegment(Vector(-30, -10, 0), Vector(-30, 3, 0)), False)
sketch6.addGeometry(Part.LineSegment(Vector(-30, 3, 0), Vector(39, 3, 0)), False)
sketch6.addConstraint(Sketcher.Constraint("Coincident", 0, 2, 1, 1))
sketch6.addConstraint(Sketcher.Constraint("Coincident", 1, 2, 2, 1))
sketch6.addConstraint(Sketcher.Constraint("Coincident", 2, 2, 3, 1))
sketch6.addConstraint(Sketcher.Constraint("Coincident", 3, 2, 4, 1))
sketch6.addConstraint(Sketcher.Constraint("Coincident", 4, 2, 5, 1))
sketch6.addConstraint(Sketcher.Constraint("Coincident", 5, 2, 6, 1))
sketch6.addConstraint(Sketcher.Constraint("Coincident", 6, 2, 7, 1))
sketch6.addConstraint(Sketcher.Constraint("Coincident", 7, 2, 0, 1))
sketch6.addConstraint(Sketcher.Constraint("Vertical", 0))
sketch6.addConstraint(Sketcher.Constraint("Horizontal", 1))
sketch6.addConstraint(Sketcher.Constraint("Horizontal", 3))
sketch6.addConstraint(Sketcher.Constraint("Horizontal", 5))
sketch6.addConstraint(Sketcher.Constraint("Vertical", 6))
sketch6.addConstraint(Sketcher.Constraint("Horizontal", 7))
sketch6.addConstraint(Sketcher.Constraint("Perpendicular", 2, 4))
sketch6.addConstraint(Sketcher.Constraint("Horizontal", 1, 2, 4, 2))
sketch6.addConstraint(Sketcher.Constraint("Equal", 1, 5))
sketch6.addConstraint(Sketcher.Constraint("Equal", 2, 4))
sketch6.addConstraint(Sketcher.Constraint("DistanceY", 0, 2, 0, 1, 13.0))
sketch6.addConstraint(Sketcher.Constraint("DistanceX", 1, 2, 1, 1, 11.6))
sketch6.addConstraint(Sketcher.Constraint("DistanceY", 0, 2, -1, 1, 10.0))
sketch6.addConstraint(Sketcher.Constraint("DistanceY", 2, 2, -1, 1, 5.0))
sketch6.addConstraint(Sketcher.Constraint("DistanceX", 3, 2, 3, 1, 35.62))
sketch6.addConstraint(Sketcher.Constraint("DistanceX", -1, 1, 0, 2, 38.61))
pad3 = body.newObject("PartDesign::Pad", "Pad002")
pad3.Profile = sketch6
pad3.Length = 2
pad3.Reversed = True
doc.recompute()

datumplane = body.newObject("PartDesign::Plane", "DatumPlane")
datumplane.AttachmentSupport = (doc.getObject("XY_Plane"), [""])
datumplane.MapMode = "FlatFace"
datumplane.AttachmentOffset = App.Placement(Vector(0, 0, -10.25), App.Rotation())
mirrored = body.newObject("PartDesign::Mirrored", "Mirrored")
mirrored.Originals = [pad3]
mirrored.MirrorPlane = (datumplane, [""])
body.Tip = mirrored
doc.recompute()

chamfer = body.newObject("PartDesign::Chamfer", "Chamfer")
chamfer.Base = (mirrored, edges_at(mirrored, [
    (-30.21, 3, -10.25),
    (38.61, 3, -10.25),
    (-30.21, -3.5, -25.5),
    (4.2, 3, -25.5),
    (38.61, -3.5, -25.5),
    (38.61, -3.5, 5),
    (4.2, 3, 5),
    (-30.21, -3.5, 5),
]))
chamfer.Size = 1

doc.recompute()
